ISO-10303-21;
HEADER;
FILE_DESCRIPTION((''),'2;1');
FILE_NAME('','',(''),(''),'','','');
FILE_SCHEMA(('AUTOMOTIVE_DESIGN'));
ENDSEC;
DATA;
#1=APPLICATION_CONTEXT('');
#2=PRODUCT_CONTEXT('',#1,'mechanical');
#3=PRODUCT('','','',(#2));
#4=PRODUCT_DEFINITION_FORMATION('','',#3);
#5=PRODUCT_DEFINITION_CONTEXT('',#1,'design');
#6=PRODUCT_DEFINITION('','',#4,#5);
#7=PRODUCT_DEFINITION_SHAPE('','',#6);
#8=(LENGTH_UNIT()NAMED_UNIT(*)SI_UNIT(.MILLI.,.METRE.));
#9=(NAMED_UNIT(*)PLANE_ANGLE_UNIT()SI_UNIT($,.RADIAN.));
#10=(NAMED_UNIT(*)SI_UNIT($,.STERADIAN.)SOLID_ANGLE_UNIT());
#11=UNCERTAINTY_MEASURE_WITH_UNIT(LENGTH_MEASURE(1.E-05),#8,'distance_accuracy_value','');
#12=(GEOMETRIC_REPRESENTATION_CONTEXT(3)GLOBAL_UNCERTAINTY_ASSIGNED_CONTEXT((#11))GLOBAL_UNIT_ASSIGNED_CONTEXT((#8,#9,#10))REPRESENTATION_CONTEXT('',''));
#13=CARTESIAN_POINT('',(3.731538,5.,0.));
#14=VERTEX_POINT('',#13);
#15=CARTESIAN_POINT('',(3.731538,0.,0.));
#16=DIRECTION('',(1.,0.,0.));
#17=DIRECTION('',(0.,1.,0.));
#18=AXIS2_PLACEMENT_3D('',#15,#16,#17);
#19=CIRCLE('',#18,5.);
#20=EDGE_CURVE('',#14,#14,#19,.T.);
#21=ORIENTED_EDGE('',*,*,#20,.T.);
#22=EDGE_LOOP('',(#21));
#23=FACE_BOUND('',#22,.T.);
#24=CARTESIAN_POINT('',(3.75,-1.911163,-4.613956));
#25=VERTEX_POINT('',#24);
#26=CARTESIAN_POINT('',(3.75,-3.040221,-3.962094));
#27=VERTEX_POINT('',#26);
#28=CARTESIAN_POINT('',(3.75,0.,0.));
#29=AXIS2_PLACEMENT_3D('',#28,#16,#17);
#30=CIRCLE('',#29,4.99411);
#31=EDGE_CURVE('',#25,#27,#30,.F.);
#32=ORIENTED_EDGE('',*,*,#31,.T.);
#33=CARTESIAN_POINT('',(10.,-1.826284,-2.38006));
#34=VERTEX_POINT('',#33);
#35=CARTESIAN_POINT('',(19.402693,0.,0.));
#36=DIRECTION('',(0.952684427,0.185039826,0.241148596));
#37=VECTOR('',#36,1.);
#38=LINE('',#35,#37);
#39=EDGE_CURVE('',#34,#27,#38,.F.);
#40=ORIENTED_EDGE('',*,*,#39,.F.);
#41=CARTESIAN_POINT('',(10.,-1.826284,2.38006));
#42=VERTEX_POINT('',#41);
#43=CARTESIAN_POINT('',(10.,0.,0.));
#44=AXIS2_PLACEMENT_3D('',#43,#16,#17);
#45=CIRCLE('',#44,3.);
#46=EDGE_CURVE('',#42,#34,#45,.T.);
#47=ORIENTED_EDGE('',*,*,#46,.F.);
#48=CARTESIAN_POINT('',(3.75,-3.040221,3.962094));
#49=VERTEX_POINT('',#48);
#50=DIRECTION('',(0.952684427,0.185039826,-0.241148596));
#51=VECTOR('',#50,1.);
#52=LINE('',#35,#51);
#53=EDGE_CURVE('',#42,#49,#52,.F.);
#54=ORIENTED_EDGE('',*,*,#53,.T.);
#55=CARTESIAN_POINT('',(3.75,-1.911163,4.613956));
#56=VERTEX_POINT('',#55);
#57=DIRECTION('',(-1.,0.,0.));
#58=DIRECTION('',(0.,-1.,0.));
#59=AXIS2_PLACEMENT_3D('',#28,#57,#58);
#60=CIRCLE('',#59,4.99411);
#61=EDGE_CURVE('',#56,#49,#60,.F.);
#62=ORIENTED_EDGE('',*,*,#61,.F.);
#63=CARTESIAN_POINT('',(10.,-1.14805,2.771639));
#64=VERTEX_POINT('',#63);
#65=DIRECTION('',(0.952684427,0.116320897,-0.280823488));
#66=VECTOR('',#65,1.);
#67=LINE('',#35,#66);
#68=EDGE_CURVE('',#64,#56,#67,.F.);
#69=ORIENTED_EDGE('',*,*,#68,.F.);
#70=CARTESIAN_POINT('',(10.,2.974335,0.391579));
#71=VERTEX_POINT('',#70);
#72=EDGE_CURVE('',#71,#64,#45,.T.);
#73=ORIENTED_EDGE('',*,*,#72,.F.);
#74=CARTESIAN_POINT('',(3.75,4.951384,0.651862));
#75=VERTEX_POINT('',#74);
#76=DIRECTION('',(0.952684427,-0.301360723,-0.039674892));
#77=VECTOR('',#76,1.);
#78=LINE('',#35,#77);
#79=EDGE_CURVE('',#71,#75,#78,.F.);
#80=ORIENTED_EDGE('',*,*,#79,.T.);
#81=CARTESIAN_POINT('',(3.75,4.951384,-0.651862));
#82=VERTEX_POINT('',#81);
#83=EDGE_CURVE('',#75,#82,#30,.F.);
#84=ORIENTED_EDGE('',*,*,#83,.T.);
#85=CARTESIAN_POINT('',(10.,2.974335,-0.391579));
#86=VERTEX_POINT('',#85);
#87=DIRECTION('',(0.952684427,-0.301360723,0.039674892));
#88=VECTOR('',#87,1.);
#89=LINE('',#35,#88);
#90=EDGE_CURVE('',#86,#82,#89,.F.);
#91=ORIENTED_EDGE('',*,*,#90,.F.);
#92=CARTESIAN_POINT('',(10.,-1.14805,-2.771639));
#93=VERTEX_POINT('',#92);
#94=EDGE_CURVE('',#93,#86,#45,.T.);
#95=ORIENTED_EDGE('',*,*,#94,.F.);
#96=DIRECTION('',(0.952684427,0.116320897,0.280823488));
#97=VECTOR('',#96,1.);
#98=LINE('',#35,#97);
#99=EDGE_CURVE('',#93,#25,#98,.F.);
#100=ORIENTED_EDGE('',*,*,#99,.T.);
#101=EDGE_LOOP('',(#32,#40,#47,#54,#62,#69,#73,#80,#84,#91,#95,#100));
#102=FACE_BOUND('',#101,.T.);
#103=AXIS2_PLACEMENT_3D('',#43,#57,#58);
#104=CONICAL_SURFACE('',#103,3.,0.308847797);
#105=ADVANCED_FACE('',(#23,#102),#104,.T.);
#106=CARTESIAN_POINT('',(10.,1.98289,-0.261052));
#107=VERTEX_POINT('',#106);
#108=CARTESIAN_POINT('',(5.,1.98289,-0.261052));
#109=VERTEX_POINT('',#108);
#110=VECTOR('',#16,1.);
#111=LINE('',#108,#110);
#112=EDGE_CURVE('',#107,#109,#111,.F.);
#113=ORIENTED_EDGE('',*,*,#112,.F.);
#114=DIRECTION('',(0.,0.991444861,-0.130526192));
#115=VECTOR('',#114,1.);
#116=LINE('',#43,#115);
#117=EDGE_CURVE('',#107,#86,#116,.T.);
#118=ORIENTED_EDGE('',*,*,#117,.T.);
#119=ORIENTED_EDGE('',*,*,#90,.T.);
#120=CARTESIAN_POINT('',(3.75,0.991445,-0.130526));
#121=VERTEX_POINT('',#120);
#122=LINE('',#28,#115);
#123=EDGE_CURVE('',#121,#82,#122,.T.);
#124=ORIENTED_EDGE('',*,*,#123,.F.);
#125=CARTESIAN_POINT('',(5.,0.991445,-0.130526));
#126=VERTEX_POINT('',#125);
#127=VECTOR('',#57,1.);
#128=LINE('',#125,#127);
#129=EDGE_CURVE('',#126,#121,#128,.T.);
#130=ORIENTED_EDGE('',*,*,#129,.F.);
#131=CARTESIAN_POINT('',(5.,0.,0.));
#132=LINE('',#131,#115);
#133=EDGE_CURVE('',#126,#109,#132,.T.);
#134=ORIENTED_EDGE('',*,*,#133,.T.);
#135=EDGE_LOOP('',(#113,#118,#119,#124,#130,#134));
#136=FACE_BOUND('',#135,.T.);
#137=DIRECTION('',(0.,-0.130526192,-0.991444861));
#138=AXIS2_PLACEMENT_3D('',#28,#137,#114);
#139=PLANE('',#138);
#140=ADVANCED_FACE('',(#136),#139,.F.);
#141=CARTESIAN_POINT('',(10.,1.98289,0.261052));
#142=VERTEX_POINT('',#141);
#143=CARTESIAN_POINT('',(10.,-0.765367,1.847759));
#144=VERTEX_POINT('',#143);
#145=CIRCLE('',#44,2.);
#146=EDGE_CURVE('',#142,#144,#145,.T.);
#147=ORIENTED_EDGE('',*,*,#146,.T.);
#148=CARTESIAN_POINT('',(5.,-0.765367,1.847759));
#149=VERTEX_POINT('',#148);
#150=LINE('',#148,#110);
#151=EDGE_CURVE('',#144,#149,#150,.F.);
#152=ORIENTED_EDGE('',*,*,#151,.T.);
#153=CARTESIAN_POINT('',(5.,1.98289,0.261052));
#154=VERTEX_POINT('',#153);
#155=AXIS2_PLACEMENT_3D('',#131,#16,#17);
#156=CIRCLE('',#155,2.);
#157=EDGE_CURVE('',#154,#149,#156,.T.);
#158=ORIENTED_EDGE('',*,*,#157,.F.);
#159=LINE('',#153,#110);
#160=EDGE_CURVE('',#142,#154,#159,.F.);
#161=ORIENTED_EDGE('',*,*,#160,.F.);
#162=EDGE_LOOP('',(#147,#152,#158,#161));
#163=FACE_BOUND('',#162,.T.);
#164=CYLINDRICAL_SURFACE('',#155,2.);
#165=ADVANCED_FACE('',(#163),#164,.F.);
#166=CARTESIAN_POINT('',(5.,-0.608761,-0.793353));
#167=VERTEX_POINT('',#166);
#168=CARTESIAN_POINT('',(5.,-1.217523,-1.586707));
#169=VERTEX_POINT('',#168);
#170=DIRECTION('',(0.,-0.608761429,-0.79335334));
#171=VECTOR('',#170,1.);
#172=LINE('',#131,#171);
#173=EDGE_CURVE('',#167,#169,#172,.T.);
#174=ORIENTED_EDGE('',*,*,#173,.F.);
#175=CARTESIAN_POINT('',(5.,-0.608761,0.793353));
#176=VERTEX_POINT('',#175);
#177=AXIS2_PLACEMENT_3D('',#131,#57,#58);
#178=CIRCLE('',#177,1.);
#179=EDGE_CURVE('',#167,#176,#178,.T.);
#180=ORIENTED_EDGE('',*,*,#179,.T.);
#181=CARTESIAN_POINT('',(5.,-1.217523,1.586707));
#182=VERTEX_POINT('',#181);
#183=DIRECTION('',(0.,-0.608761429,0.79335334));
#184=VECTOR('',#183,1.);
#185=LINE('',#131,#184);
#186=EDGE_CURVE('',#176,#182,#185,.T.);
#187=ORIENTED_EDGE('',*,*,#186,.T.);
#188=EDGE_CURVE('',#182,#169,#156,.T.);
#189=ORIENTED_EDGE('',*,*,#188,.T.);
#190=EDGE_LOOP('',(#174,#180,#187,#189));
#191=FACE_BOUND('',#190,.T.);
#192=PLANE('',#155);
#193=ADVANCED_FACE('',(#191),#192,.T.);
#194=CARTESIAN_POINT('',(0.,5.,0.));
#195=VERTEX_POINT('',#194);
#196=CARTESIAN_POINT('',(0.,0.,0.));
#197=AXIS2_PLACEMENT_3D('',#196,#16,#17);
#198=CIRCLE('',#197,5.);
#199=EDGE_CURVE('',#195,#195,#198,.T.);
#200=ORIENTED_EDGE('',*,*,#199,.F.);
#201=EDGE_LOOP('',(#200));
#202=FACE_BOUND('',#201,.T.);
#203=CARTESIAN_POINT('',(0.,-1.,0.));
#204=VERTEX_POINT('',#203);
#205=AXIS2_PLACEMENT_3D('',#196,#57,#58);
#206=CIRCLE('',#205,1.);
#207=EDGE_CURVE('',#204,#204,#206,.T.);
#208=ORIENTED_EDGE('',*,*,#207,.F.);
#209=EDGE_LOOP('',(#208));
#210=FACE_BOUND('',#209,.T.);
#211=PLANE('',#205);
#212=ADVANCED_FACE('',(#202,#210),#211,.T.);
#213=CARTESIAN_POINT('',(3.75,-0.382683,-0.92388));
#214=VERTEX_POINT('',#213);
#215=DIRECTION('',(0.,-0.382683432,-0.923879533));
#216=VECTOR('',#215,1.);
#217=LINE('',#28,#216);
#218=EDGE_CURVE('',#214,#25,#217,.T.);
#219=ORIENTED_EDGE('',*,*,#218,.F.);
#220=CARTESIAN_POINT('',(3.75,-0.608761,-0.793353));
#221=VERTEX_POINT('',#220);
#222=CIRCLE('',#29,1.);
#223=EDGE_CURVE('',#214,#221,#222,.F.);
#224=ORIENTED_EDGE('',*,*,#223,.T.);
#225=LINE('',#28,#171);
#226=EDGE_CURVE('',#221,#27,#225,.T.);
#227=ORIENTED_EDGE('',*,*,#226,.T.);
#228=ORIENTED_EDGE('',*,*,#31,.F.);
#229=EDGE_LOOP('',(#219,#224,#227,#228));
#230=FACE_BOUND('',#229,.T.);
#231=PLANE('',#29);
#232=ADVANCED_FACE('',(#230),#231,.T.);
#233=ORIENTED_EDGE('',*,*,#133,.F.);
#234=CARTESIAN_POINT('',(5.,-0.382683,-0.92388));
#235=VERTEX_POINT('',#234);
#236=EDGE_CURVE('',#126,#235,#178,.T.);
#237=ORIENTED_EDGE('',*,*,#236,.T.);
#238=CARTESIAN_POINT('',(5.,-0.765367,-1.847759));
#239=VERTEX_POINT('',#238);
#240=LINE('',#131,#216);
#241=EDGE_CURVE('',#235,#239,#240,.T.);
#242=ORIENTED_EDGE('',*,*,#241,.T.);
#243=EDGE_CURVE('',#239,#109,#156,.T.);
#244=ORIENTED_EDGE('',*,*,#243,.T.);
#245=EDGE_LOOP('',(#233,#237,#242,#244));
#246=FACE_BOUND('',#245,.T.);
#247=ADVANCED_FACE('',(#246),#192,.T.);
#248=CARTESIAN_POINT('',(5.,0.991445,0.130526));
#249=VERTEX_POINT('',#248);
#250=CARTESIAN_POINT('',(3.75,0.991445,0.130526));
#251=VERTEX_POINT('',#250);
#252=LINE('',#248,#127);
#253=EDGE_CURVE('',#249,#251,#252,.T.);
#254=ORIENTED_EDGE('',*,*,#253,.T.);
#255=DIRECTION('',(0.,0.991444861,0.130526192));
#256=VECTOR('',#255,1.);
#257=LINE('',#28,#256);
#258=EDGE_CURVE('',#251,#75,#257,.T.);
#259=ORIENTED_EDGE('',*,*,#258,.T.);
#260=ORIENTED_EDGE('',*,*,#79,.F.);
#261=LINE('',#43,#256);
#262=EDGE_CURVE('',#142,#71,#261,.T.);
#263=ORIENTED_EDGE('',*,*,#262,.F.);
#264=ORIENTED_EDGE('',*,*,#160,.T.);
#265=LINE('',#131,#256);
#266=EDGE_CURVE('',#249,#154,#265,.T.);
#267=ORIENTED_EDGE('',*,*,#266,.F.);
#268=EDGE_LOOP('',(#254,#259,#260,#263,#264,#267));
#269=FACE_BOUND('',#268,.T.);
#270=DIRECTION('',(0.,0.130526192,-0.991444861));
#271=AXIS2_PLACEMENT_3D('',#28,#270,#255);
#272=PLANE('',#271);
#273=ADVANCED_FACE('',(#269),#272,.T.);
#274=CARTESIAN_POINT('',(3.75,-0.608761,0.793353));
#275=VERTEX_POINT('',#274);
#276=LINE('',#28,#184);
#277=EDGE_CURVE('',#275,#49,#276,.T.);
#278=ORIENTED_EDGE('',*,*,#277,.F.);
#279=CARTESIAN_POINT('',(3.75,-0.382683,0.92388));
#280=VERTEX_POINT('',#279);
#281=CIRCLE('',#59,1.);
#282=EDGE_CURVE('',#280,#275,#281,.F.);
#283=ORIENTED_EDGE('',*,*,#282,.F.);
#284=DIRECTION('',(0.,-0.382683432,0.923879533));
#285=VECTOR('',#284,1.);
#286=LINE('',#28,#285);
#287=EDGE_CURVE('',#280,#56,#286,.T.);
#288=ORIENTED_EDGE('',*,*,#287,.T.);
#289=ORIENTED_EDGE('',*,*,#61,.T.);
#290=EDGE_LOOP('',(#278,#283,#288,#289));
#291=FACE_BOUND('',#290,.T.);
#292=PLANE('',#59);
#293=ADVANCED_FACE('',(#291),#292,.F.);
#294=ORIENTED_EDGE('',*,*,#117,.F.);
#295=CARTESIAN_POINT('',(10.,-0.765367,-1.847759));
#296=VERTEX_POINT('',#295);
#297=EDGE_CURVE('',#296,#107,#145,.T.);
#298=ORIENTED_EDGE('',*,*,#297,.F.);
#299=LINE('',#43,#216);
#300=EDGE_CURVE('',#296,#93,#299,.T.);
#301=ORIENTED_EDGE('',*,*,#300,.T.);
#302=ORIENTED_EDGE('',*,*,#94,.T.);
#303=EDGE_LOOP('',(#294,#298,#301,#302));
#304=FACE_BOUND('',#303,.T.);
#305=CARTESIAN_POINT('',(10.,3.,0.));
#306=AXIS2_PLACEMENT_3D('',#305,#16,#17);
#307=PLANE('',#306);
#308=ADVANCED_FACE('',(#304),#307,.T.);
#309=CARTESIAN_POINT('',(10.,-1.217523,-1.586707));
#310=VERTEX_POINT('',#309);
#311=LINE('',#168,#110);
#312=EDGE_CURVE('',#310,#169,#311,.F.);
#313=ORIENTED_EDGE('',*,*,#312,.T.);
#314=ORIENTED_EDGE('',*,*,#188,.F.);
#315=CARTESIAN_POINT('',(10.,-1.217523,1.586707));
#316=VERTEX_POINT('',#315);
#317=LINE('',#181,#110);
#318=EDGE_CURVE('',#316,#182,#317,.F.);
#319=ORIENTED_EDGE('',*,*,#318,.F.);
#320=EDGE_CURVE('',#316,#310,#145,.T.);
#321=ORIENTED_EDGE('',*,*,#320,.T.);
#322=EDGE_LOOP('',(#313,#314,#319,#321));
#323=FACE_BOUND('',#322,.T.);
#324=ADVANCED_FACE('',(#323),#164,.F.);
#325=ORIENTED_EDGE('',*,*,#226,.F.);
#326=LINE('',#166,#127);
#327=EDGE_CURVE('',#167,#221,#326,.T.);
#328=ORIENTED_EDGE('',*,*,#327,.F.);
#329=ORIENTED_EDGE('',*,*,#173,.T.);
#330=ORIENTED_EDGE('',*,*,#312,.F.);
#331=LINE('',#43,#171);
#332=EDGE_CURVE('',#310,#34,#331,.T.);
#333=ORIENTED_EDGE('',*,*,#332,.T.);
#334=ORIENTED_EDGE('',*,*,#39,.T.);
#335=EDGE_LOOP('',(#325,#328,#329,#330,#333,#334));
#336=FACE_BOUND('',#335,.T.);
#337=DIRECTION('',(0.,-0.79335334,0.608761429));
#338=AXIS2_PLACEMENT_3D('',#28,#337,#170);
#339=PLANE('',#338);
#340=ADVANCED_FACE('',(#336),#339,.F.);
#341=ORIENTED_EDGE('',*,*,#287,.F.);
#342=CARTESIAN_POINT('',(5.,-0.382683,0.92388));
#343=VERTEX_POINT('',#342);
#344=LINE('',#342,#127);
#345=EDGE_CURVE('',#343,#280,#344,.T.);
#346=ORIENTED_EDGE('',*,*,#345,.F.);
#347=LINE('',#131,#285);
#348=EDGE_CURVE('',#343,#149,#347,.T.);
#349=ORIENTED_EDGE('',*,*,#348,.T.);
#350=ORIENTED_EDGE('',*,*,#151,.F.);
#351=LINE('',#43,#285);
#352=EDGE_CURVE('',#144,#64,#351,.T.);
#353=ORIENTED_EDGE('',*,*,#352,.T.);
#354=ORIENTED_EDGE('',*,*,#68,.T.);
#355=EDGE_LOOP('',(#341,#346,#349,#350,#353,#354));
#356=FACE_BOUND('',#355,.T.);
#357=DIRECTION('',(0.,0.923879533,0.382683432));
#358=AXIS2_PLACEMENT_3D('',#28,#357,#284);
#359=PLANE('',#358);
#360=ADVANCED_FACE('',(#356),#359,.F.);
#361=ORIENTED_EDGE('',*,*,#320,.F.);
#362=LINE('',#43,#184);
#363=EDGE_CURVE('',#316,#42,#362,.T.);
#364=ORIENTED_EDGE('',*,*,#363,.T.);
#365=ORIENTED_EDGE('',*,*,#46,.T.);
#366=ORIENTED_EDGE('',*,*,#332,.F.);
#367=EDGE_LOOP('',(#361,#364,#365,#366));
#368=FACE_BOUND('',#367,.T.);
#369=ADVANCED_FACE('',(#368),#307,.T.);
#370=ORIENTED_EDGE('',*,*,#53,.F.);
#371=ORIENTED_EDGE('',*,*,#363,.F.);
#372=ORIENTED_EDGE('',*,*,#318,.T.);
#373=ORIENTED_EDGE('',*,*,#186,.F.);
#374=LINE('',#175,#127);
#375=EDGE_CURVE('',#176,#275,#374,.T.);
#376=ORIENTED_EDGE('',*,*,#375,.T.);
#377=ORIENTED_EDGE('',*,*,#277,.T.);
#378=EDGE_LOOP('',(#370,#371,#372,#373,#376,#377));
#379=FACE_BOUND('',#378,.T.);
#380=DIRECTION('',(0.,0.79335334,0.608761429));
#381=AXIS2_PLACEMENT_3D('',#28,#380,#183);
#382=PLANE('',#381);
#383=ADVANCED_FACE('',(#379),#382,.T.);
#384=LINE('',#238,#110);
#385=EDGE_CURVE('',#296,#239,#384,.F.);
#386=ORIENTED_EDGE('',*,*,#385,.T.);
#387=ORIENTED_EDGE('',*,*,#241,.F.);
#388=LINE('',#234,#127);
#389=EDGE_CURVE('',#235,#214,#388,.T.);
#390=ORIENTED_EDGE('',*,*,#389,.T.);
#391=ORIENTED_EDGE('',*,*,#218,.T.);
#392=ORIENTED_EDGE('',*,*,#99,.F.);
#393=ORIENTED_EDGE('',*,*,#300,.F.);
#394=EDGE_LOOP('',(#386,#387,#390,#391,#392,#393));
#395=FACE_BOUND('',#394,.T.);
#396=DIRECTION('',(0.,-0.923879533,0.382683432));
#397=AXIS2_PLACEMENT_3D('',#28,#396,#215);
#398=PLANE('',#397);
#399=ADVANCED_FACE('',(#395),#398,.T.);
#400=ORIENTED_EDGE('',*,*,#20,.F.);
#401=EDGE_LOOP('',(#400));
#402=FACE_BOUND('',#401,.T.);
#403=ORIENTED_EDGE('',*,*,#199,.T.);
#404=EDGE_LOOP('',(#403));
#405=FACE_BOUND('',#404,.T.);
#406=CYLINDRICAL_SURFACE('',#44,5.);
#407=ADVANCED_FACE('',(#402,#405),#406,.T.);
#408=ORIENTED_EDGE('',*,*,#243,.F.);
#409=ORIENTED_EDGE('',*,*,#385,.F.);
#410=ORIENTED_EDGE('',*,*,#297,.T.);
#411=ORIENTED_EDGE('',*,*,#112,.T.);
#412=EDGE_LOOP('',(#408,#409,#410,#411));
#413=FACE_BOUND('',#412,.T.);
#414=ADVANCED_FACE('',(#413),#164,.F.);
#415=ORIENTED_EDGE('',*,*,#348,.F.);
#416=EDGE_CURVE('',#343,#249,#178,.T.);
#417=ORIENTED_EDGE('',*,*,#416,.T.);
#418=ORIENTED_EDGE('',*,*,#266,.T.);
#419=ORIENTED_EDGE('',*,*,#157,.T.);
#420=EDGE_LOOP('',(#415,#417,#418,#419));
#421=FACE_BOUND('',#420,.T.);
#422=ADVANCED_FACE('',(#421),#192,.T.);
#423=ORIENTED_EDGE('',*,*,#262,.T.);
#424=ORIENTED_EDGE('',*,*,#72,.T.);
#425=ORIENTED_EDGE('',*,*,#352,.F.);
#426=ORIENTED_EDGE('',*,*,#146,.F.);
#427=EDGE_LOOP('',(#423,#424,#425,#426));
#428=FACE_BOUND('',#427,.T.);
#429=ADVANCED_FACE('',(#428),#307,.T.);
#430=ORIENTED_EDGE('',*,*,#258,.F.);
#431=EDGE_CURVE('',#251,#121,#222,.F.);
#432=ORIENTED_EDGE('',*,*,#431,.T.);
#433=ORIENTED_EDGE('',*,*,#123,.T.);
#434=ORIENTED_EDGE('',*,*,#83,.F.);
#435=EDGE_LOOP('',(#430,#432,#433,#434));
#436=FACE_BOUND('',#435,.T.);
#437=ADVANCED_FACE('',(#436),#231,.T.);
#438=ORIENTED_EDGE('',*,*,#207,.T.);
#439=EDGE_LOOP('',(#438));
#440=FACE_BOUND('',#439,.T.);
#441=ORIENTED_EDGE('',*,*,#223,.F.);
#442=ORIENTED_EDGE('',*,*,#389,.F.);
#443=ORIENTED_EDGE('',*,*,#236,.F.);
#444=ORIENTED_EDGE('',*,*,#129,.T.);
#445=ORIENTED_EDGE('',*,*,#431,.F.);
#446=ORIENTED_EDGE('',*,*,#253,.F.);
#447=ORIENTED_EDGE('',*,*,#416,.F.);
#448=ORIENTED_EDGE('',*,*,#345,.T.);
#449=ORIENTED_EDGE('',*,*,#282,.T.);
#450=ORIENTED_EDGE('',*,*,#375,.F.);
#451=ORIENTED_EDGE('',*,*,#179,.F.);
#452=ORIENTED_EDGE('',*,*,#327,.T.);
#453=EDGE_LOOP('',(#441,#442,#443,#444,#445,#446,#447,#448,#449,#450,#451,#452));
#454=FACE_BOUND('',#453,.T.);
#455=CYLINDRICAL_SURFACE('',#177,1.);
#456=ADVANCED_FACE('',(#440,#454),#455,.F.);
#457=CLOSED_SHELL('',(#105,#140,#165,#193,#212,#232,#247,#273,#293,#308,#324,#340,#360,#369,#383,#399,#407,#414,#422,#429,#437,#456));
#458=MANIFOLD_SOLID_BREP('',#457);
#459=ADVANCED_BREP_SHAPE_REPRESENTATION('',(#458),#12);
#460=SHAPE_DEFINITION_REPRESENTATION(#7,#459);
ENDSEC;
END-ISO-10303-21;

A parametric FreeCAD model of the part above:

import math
import FreeCAD as App
import Part
import Sketcher

V = App.Vector
Q = App.Units.Quantity


def add_polygon(sketch, points):
    """Adds a closed chain of lines whose ends are joined by coincident constraints."""
    first, n = sketch.GeometryCount, len(points)
    for a, b in zip(points, points[1:] + points[:1]):
        sketch.addGeometry(Part.LineSegment(App.Vector(*a, 0), App.Vector(*b, 0)), False)
    for i in range(n):
        sketch.addConstraint(Sketcher.Constraint("Coincident", first + i, 2, first + (i + 1) % n, 1))

doc = App.newDocument("Part")
body = doc.addObject("PartDesign::Body", "Body")

# Sketch on XY plane
sketch1 = body.newObject("Sketcher::SketchObject", "Sketch")
sketch1.AttachmentSupport = (doc.getObject("XY_Plane"), [""])
sketch1.MapMode = "FlatFace"
add_polygon(sketch1, [(0, 5), (0, 0), (10, 0), (10, 3), (3.731538, 5)])  # lines 0-4
sketch1.addConstraint([
    Sketcher.Constraint("Vertical", 0),
    Sketcher.Constraint("Horizontal", 1),
    Sketcher.Constraint("Vertical", 2),
    Sketcher.Constraint("Horizontal", 4),
    Sketcher.Constraint("Coincident", 0, 2, -1, 1),
    Sketcher.Constraint("DistanceX", 1, 1, 1, 2, 10.0),
    Sketcher.Constraint("DistanceY", 0, 2, 0, 1, 5.0),
    Sketcher.Constraint("DistanceY", 2, 1, 2, 2, 3.0),
    Sketcher.Constraint("DistanceX", 4, 2, 4, 1, 3.731538),
])
revolution = body.newObject("PartDesign::Revolution", "Revolution")
revolution.Profile = sketch1
revolution.ReferenceAxis = (sketch1, ["H_Axis"])
revolution.Angle = 360

# Sketch on YZ plane
sketch2 = body.newObject("Sketcher::SketchObject", "Sketch001")
sketch2.AttachmentSupport = (doc.getObject("YZ_Plane"), [""])
sketch2.MapMode = "FlatFace"
sketch2.AttachmentOffset = App.Placement(V(0, 0, 10), App.Rotation())
sketch2.addGeometry(Part.Circle(V(0, 0, 0), V(0, 0, 1), 2), False)
sketch2.addConstraint([
    Sketcher.Constraint("Coincident", 0, 3, -1, 1),
    Sketcher.Constraint("Diameter", 0, 4.0),
])
pocket1 = body.newObject("PartDesign::Pocket", "Pocket")
pocket1.Profile = sketch2
pocket1.Length = 5

# Sketch on YZ plane
sketch3 = body.newObject("Sketcher::SketchObject", "Sketch002")
sketch3.AttachmentSupport = (doc.getObject("YZ_Plane"), [""])
sketch3.MapMode = "FlatFace"
sketch3.addGeometry(Part.Circle(V(0, 0, 0), V(0, 0, 1), 1), False)
sketch3.addConstraint([
    Sketcher.Constraint("Coincident", 0, 3, -1, 1),
    Sketcher.Constraint("Diameter", 0, 2.0),
])
pocket2 = body.newObject("PartDesign::Pocket", "Pocket001")
pocket2.Profile = sketch3
pocket2.Length = 5
pocket2.Reversed = True

# Sketch on YZ plane
sketch4 = body.newObject("Sketcher::SketchObject", "Sketch003")
sketch4.AttachmentSupport = (doc.getObject("YZ_Plane"), [""])
sketch4.MapMode = "FlatFace"
sketch4.AttachmentOffset = App.Placement(V(0, 0, 10), App.Rotation())
sketch4.addGeometry([
    Part.LineSegment(V(4.957224, 0.652631, 0), V(0, 0, 0)),  # 0
    Part.LineSegment(V(0, 0, 0), V(4.957224, -0.652631, 0)),  # 1
    Part.ArcOfCircle(Part.Circle(V(0, 0, 0), V(0, 0, 1), 5), math.radians(-7.5), math.radians(7.5)),  # 2
    Part.LineSegment(V(-1.913417, -4.619398, 0), V(0, 0, 0)),  # 3
    Part.LineSegment(V(0, 0, 0), V(-3.043807, -3.966767, 0)),  # 4
    Part.ArcOfCircle(Part.Circle(V(0, 0, 0), V(0, 0, 1), 5), math.radians(-127.5), math.radians(-112.5)),  # 5
    Part.LineSegment(V(-3.043807, 3.966767, 0), V(0, 0, 0)),  # 6
    Part.LineSegment(V(0, 0, 0), V(-1.913417, 4.619398, 0)),  # 7
    Part.ArcOfCircle(Part.Circle(V(0, 0, 0), V(0, 0, 1), 5), math.radians(112.5), math.radians(127.5)),  # 8
], False)
sketch4.addConstraint([
    Sketcher.Constraint("Coincident", 0, 2, 1, 1),
    Sketcher.Constraint("Coincident", 1, 2, 2, 1),
    Sketcher.Constraint("Coincident", 2, 2, 0, 1),
    Sketcher.Constraint("Coincident", 3, 2, 4, 1),
    Sketcher.Constraint("Coincident", 4, 2, 5, 1),
    Sketcher.Constraint("Coincident", 5, 2, 3, 1),
    Sketcher.Constraint("Coincident", 6, 2, 7, 1),
    Sketcher.Constraint("Coincident", 7, 2, 8, 1),
    Sketcher.Constraint("Coincident", 8, 2, 6, 1),
    Sketcher.Constraint("Coincident", 2, 3, -1, 1),
    Sketcher.Constraint("Coincident", 5, 3, -1, 1),
    Sketcher.Constraint("Coincident", 8, 3, -1, 1),
    Sketcher.Constraint("Coincident", 0, 2, -1, 1),
    Sketcher.Constraint("Coincident", 3, 2, -1, 1),
    Sketcher.Constraint("Coincident", 6, 2, -1, 1),
    Sketcher.Constraint("Equal", 2, 5),
    Sketcher.Constraint("Equal", 5, 8),
    Sketcher.Constraint("Vertical", 1, 2, 2, 2),
    Sketcher.Constraint("Vertical", 5, 2, 7, 2),
    Sketcher.Constraint("Vertical", 4, 2, 8, 2),
    Sketcher.Constraint("Radius", 2, 5.0),
    Sketcher.Constraint("Angle", 0, Q("-172.5 deg")),
    Sketcher.Constraint("Angle", 3, Q("67.5 deg")),
    Sketcher.Constraint("Angle", 4, Q("-127.5 deg")),
])
pocket3 = body.newObject("PartDesign::Pocket", "Pocket002")
pocket3.Profile = sketch4
pocket3.Length = 6.25

doc.recompute()
